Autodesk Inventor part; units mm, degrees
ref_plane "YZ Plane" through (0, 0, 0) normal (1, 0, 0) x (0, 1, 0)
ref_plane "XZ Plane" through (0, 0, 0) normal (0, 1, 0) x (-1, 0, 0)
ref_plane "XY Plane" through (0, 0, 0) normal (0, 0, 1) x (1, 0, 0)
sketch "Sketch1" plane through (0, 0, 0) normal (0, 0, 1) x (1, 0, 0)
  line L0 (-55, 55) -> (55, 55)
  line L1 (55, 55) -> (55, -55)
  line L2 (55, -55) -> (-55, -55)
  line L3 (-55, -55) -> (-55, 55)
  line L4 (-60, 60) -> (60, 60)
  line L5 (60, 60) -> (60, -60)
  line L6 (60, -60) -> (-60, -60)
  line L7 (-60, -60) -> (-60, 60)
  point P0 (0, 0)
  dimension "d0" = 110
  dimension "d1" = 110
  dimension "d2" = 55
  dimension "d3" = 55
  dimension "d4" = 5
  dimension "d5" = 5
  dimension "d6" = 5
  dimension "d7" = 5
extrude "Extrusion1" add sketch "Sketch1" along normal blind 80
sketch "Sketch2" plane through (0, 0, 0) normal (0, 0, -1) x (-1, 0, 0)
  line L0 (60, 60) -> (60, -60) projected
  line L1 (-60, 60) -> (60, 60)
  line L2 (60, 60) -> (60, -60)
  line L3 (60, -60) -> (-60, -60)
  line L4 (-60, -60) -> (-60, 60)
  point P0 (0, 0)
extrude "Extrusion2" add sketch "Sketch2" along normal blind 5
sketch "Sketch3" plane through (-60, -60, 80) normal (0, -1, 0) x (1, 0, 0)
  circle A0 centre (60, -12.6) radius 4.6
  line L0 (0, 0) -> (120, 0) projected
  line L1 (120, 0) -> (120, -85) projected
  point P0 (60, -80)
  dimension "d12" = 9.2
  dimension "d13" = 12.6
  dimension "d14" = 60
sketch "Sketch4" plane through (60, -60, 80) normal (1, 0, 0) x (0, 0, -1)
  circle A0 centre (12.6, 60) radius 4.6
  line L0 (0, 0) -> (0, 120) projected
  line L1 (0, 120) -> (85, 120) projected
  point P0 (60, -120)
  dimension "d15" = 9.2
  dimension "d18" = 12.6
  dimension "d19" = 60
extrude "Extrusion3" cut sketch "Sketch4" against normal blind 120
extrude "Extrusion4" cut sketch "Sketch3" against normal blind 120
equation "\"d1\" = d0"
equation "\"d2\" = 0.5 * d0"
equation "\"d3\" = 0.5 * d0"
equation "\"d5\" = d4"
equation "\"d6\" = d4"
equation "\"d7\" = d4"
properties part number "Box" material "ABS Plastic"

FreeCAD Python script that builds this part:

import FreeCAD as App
import Part
import Sketcher
from FreeCAD import Vector
Q = App.Units.Quantity

doc = App.newDocument("Part")
params = doc.addObject("Spreadsheet::Sheet", "Params")
for row, (alias, value) in enumerate([
    ("sketch1_width", "110 mm"),
    ("pad1_length", "80 mm"),
    ("sketch2_width", "120 mm"),
    ("pad2_length", "5 mm"),
    ("sketch3_diameter", "9.2 mm"),
    ("pocket1_length", "120 mm"),
    ("sketch4_diameter", "9.2 mm"),
    ("pocket2_length", "120 mm"),
], start=1):
    params.set(f"A{row}", alias)
    params.set(f"B{row}", "=" + value)
    params.setAlias(f"B{row}", alias)

body = doc.addObject("PartDesign::Body", "Body")

# Sketch on XY plane
sketch1 = body.newObject("Sketcher::SketchObject", "Sketch")
sketch1.AttachmentSupport = (doc.getObject("XY_Plane"), [""])
sketch1.MapMode = "FlatFace"
sketch1.addGeometry([
    Part.LineSegment(Vector(60, 60, 0), Vector(-60, 60, 0)),  # 0
    Part.LineSegment(Vector(-60, 60, 0), Vector(-60, -60, 0)),  # 1
    Part.LineSegment(Vector(-60, -60, 0), Vector(60, -60, 0)),  # 2
    Part.LineSegment(Vector(60, -60, 0), Vector(60, 60, 0)),  # 3
    Part.LineSegment(Vector(-55, -55, 0), Vector(-55, 55, 0)),  # 4
    Part.LineSegment(Vector(-55, 55, 0), Vector(55, 55, 0)),  # 5
    Part.LineSegment(Vector(55, 55, 0), Vector(55, -55, 0)),  # 6
    Part.LineSegment(Vector(55, -55, 0), Vector(-55, -55, 0)),  # 7
], False)
sketch1.addConstraint([
    Sketcher.Constraint("Coincident", 0, 2, 1, 1),
    Sketcher.Constraint("Coincident", 1, 2, 2, 1),
    Sketcher.Constraint("Coincident", 2, 2, 3, 1),
    Sketcher.Constraint("Coincident", 3, 2, 0, 1),
    Sketcher.Constraint("Coincident", 4, 2, 5, 1),
    Sketcher.Constraint("Coincident", 5, 2, 6, 1),
    Sketcher.Constraint("Coincident", 6, 2, 7, 1),
    Sketcher.Constraint("Coincident", 7, 2, 4, 1),
    Sketcher.Constraint("Horizontal", 0),
    Sketcher.Constraint("Vertical", 1),
    Sketcher.Constraint("Horizontal", 2),
    Sketcher.Constraint("Vertical", 3),
    Sketcher.Constraint("Vertical", 4),
    Sketcher.Constraint("Horizontal", 5),
    Sketcher.Constraint("Vertical", 6),
    Sketcher.Constraint("Horizontal", 7),
    Sketcher.Constraint("Symmetric", 0, 2, 2, 2, -1, 1),
    Sketcher.Constraint("Symmetric", 4, 2, 6, 2, -1, 1),
    Sketcher.Constraint("Equal", 2, 1),
    Sketcher.Constraint("Equal", 7, 4),
    Sketcher.Constraint("DistanceX", 5, 1, 5, 2, Q("110 mm")),
    Sketcher.Constraint("DistanceX", 0, 2, 4, 2, Q("5 mm")),
])
sketch1.setExpression("Constraints[20]", "Params.sketch1_width")
pad1 = body.newObject("PartDesign::Pad", "Pad")
pad1.Profile = sketch1
pad1.setExpression("Length", "Params.pad1_length")

# Sketch on XY plane
sketch2 = body.newObject("Sketcher::SketchObject", "Sketch001")
sketch2.AttachmentSupport = (doc.getObject("XY_Plane"), [""])
sketch2.MapMode = "FlatFace"
sketch2.addGeometry([
    Part.LineSegment(Vector(-60, -60, 0), Vector(-60, 60, 0)),
    Part.LineSegment(Vector(-60, 60, 0), Vector(60, 60, 0)),
    Part.LineSegment(Vector(60, 60, 0), Vector(60, -60, 0)),
    Part.LineSegment(Vector(60, -60, 0), Vector(-60, -60, 0)),
], False)
sketch2.addConstraint([
    Sketcher.Constraint("Coincident", 0, 2, 1, 1),
    Sketcher.Constraint("Coincident", 1, 2, 2, 1),
    Sketcher.Constraint("Coincident", 2, 2, 3, 1),
    Sketcher.Constraint("Coincident", 3, 2, 0, 1),
    Sketcher.Constraint("Vertical", 0),
    Sketcher.Constraint("Horizontal", 1),
    Sketcher.Constraint("Vertical", 2),
    Sketcher.Constraint("Horizontal", 3),
    Sketcher.Constraint("Symmetric", 0, 2, 2, 2, -1, 1),
    Sketcher.Constraint("Equal", 3, 0),
    Sketcher.Constraint("DistanceX", 1, 1, 1, 2, Q("120 mm")),
])
sketch2.setExpression("Constraints[10]", "Params.sketch2_width")
pad2 = body.newObject("PartDesign::Pad", "Pad001")
pad2.Profile = sketch2
pad2.setExpression("Length", "Params.pad2_length")
pad2.Reversed = True

# Sketch on YZ plane
sketch3 = body.newObject("Sketcher::SketchObject", "Sketch002")
sketch3.AttachmentSupport = (doc.getObject("YZ_Plane"), [""])
sketch3.MapMode = "FlatFace"
sketch3.AttachmentOffset = App.Placement(Vector(0, 0, 60), App.Rotation())
sketch3.addGeometry(Part.Circle(Vector(0, 67.4, 0), Vector(0, 0, 1), 4.6), False)
sketch3.addConstraint([
    Sketcher.Constraint("PointOnObject", 0, 3, -2),
    Sketcher.Constraint("Diameter", 0, Q("9.2 mm")),
    Sketcher.Constraint("DistanceY", -1, 1, 0, 3, Q("67.4 mm")),
])
sketch3.setExpression("Constraints[1]", "Params.sketch3_diameter")
pocket1 = body.newObject("PartDesign::Pocket", "Pocket")
pocket1.Profile = sketch3
pocket1.setExpression("Length", "Params.pocket1_length")

# Sketch on XZ plane
sketch4 = body.newObject("Sketcher::SketchObject", "Sketch003")
sketch4.AttachmentSupport = (doc.getObject("XZ_Plane"), [""])
sketch4.MapMode = "FlatFace"
sketch4.AttachmentOffset = App.Placement(Vector(0, 0, 60), App.Rotation())
sketch4.addGeometry(Part.Circle(Vector(0, 67.4, 0), Vector(0, 0, 1), 4.6), False)
sketch4.addConstraint([
    Sketcher.Constraint("PointOnObject", 0, 3, -2),
    Sketcher.Constraint("Diameter", 0, Q("9.2 mm")),
    Sketcher.Constraint("DistanceY", -1, 1, 0, 3, Q("67.4 mm")),
])
sketch4.setExpression("Constraints[1]", "Params.sketch4_diameter")
pocket2 = body.newObject("PartDesign::Pocket", "Pocket001")
pocket2.Profile = sketch4
pocket2.setExpression("Length", "Params.pocket2_length")

doc.recompute()
